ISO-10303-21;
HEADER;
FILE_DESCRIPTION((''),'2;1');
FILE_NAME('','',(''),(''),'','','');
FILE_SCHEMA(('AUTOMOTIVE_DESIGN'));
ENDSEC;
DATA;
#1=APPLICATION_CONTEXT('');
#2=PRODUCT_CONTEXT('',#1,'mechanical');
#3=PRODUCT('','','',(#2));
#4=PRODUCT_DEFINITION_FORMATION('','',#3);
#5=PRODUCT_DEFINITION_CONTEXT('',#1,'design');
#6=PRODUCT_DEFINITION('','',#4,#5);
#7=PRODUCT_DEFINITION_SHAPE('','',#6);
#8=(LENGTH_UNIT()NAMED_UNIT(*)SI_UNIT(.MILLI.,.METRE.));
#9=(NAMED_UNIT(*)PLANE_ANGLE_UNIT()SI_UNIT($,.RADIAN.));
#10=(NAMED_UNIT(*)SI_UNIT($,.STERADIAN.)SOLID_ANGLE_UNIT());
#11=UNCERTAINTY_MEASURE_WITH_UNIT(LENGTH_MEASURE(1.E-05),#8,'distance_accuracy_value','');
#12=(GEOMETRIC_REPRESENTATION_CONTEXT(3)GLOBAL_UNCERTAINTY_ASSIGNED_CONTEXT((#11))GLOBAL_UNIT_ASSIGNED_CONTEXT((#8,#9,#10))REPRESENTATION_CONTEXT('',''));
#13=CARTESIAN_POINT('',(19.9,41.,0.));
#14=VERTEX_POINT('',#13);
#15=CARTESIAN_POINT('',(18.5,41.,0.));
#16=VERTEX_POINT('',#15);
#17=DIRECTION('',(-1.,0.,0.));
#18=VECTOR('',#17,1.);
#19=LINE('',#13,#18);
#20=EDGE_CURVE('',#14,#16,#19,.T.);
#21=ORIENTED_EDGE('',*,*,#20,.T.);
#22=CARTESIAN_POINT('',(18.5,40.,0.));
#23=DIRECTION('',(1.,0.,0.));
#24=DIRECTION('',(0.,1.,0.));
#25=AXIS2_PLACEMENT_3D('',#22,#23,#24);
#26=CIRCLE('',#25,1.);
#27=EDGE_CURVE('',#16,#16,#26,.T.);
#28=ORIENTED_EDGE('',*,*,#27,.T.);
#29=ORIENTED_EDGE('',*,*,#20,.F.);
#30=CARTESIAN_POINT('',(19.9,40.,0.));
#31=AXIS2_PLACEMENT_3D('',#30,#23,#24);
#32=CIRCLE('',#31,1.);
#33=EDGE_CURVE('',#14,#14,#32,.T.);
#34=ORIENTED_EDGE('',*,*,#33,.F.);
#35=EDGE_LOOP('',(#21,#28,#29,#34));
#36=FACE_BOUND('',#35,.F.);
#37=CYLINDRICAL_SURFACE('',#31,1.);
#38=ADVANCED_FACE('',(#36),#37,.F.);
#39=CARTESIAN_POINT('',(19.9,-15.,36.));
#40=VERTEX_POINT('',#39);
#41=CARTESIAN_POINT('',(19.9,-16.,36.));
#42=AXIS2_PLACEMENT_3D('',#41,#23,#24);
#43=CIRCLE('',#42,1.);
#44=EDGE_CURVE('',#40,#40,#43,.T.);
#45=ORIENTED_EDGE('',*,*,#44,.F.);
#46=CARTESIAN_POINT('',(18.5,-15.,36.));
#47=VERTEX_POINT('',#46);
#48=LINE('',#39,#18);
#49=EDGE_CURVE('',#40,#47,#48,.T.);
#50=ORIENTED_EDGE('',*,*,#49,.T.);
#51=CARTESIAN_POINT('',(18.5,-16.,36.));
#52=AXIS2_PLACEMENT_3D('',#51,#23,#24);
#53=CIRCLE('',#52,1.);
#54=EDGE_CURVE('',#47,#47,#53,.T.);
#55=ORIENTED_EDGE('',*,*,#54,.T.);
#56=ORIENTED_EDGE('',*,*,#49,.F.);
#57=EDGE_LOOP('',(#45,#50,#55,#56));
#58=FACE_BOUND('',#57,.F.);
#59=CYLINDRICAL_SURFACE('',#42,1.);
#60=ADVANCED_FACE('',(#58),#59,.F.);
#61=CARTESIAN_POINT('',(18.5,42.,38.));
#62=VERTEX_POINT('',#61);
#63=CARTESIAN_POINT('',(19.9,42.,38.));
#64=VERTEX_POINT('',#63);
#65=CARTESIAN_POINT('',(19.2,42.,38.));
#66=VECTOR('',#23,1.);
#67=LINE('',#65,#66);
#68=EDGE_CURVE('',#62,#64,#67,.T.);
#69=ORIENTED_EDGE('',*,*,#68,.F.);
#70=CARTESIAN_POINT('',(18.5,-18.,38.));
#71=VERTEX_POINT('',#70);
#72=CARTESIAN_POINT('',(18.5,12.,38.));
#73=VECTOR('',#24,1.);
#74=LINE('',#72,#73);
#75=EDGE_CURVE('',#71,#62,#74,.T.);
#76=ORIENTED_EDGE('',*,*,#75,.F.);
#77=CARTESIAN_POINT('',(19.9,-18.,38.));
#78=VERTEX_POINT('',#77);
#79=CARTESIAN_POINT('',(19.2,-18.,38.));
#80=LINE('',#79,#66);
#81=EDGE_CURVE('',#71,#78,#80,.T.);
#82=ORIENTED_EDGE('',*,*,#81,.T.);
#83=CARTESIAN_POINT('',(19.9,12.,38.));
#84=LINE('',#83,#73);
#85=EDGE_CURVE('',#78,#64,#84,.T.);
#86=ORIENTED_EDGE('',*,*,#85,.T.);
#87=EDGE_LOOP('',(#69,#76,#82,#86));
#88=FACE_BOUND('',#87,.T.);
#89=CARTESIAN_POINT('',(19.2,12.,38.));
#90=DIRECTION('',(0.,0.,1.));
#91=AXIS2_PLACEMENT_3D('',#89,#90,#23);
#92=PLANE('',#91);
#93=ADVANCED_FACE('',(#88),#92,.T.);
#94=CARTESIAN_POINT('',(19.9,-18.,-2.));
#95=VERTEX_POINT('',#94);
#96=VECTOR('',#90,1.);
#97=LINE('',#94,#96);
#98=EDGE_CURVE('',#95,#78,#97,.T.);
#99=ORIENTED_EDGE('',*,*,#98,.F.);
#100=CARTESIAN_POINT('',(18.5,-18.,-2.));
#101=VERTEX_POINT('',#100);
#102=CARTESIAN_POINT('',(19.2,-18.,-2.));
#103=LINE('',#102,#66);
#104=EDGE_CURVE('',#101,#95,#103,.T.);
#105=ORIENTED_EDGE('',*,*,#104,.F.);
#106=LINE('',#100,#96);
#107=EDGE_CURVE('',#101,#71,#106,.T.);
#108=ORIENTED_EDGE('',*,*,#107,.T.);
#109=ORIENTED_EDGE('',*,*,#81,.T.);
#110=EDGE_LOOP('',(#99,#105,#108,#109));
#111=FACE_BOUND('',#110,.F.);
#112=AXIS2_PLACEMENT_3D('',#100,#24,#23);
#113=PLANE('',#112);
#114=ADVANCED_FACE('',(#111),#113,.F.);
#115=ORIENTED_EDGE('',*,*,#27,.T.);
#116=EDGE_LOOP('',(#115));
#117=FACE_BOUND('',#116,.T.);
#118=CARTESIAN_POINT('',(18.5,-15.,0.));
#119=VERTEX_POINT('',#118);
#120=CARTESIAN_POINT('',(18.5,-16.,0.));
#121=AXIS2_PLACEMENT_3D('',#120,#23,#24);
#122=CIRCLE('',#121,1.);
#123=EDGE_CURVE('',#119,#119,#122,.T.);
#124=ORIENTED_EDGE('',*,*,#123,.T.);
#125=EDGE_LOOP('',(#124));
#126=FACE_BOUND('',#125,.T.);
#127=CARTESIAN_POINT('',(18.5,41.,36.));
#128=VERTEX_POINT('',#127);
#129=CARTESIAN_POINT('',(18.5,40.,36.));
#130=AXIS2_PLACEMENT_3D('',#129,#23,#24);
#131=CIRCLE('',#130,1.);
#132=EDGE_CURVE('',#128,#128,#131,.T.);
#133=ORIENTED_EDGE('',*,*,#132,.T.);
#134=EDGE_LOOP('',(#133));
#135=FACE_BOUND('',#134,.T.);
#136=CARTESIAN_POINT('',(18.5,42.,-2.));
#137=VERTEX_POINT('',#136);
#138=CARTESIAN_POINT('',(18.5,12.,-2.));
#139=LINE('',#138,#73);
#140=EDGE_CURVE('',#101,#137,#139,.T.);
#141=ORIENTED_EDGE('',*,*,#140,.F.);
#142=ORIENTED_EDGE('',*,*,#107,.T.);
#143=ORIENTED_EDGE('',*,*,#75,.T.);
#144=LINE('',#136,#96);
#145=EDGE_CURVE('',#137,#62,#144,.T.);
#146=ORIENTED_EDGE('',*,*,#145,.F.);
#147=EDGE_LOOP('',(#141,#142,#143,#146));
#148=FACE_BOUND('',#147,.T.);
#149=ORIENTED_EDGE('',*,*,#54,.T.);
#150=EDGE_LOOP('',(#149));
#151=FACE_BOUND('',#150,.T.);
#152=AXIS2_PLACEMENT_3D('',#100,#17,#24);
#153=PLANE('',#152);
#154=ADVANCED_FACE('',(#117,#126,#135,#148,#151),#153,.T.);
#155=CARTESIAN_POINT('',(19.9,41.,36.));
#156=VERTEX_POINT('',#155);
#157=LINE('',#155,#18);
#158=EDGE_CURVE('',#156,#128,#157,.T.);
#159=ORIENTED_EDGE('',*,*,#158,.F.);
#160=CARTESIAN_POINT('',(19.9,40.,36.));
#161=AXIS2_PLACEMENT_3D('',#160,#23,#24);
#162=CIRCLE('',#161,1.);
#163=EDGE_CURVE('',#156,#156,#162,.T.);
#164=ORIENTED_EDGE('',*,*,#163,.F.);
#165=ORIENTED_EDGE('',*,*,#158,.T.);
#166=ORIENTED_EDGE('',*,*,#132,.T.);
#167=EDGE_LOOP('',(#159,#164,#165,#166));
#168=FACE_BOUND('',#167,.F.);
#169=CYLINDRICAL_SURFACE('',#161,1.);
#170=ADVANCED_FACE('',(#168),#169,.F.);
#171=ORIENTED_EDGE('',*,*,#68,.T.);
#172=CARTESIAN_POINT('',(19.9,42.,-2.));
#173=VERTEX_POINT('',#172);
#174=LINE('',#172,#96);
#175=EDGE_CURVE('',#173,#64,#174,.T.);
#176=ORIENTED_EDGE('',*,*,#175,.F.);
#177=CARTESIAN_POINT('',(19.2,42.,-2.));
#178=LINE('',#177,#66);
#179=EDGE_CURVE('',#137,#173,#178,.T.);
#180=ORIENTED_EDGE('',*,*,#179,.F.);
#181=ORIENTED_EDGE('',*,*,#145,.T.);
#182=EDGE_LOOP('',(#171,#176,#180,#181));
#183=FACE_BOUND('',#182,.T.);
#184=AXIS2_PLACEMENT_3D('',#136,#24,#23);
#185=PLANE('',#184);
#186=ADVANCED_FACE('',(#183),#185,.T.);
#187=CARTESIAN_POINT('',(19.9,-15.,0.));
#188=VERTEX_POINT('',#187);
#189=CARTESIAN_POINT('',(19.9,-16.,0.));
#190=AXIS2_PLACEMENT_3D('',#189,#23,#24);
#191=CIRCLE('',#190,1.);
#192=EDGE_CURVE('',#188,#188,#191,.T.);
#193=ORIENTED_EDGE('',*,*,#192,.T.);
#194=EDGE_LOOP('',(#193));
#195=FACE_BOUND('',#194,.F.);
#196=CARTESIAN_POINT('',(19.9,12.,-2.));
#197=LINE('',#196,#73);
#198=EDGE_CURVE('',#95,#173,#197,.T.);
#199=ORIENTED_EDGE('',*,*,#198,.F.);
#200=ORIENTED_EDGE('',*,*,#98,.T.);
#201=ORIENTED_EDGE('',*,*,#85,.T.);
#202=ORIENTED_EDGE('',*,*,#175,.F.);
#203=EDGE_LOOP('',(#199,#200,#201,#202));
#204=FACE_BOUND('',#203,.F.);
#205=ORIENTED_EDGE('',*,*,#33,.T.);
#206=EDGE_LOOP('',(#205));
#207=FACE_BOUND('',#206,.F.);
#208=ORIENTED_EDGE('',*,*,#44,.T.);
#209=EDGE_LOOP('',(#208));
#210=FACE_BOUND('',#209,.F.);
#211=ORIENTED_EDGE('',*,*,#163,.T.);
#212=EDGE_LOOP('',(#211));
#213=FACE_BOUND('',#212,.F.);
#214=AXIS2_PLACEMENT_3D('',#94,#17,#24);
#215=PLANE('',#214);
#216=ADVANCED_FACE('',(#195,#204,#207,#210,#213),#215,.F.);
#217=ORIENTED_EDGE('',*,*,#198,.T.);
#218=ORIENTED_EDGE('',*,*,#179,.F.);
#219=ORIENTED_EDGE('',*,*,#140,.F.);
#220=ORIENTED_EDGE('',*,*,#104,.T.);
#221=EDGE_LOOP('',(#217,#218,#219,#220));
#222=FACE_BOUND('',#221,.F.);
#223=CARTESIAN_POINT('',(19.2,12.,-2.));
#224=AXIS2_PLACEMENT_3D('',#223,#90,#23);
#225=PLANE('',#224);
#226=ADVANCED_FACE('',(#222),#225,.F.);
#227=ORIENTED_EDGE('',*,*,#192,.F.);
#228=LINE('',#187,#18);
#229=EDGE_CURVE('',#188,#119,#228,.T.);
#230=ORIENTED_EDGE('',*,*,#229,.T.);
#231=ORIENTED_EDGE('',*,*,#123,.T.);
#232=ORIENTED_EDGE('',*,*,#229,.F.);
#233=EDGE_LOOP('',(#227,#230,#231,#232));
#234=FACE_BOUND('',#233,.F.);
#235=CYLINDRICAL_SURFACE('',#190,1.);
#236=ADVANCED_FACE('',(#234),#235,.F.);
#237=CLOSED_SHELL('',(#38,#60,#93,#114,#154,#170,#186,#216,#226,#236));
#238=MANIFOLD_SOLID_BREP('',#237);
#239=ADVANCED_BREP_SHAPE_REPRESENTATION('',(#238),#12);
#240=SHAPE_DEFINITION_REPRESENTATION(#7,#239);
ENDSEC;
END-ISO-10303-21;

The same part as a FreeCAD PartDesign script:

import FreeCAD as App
import Part
import Sketcher
from FreeCAD import Vector


def add_polygon(sketch, points):
    """Adds a closed chain of lines whose ends are joined by coincident constraints."""
    first, n = sketch.GeometryCount, len(points)
    for a, b in zip(points, points[1:] + points[:1]):
        sketch.addGeometry(Part.LineSegment(App.Vector(*a, 0), App.Vector(*b, 0)), False)
    for i in range(n):
        sketch.addConstraint(Sketcher.Constraint("Coincident", first + i, 2, first + (i + 1) % n, 1))

doc = App.newDocument("Part")
params = doc.addObject("Spreadsheet::Sheet", "Params")
for row, (alias, value) in enumerate([
    ("sketch1_diameter", "2 mm"),
    ("pad1_length", "1.4 mm"),
    ("sketch2_height", "60 mm"),
    ("sketch2_width", "1.4 mm"),
    ("pad2_length", "40 mm"),
], start=1):
    params.set(f"A{row}", alias)
    params.set(f"B{row}", "=" + value)
    params.setAlias(f"B{row}", alias)

body = doc.addObject("PartDesign::Body", "Body")
body.AllowCompound = True

sketch1 = doc.addObject("Sketcher::SketchObject", "Sketch")
body.addObject(sketch1)
sketch1.AttachmentSupport = (doc.YZ_Plane, [""])
sketch1.MapMode = "FlatFace"
sketch1.AttachmentOffset = App.Placement(Vector(0, 0, 1.4), App.Rotation())
sketch1.addGeometry([
    Part.Circle(Vector(2, 38, 0), Vector(0, 0, 1), 1),
    Part.Circle(Vector(58, 38, 0), Vector(0, 0, 1), 1),
    Part.Circle(Vector(58, 2, 0), Vector(0, 0, 1), 1),
    Part.Circle(Vector(2, 2, 0), Vector(0, 0, 1), 1),
], False)
sketch1.addConstraint([
    Sketcher.Constraint("Equal", 0, 1),
    Sketcher.Constraint("Equal", 1, 2),
    Sketcher.Constraint("Equal", 2, 3),
    Sketcher.Constraint("Horizontal", 0, 3, 1, 3),
    Sketcher.Constraint("Horizontal", 2, 3, 3, 3),
    Sketcher.Constraint("Vertical", 1, 3, 2, 3),
    Sketcher.Constraint("Vertical", 0, 3, 3, 3),
    Sketcher.Constraint("Diameter", 0, 2.0),
    Sketcher.Constraint("DistanceX", -1, 1, 0, 3, 2.0),
    Sketcher.Constraint("DistanceY", -1, 1, 0, 3, 38.0),
    Sketcher.Constraint("DistanceX", -1, 1, 1, 3, 58.0),
    Sketcher.Constraint("DistanceY", -1, 1, 2, 3, 2.0),
])
sketch1.setExpression("Constraints[7]", "Params.sketch1_diameter")
pad1 = doc.addObject("PartDesign::Pad", "Pad")
body.addObject(pad1)
pad1.Profile = sketch1
pad1.setExpression("Length", "Params.pad1_length")
pad1.Reversed = True
body2 = doc.addObject("PartDesign::Body", "Body001")

sketch2 = doc.addObject("Sketcher::SketchObject", "Sketch001")
body2.addObject(sketch2)
sketch2.AttachmentSupport = (doc.getObject("XY_Plane001"), [""])
sketch2.MapMode = "FlatFace"
add_polygon(sketch2, [(0, 60), (0, 0), (1.4, 0), (1.4, 60)])
sketch2.addConstraint([
    Sketcher.Constraint("Vertical", 0),
    Sketcher.Constraint("Horizontal", 1),
    Sketcher.Constraint("Vertical", 2),
    Sketcher.Constraint("Horizontal", 3),
    Sketcher.Constraint("Coincident", 0, 2, -1, 1),
    Sketcher.Constraint("DistanceY", 0, 2, 0, 1, 60.0),
    Sketcher.Constraint("DistanceX", 1, 1, 1, 2, 1.4),
])
sketch2.setExpression("Constraints[9]", "Params.sketch2_height")
sketch2.setExpression("Constraints[10]", "Params.sketch2_width")
pad2 = doc.addObject("PartDesign::Pad", "Pad001")
body2.addObject(pad2)
pad2.Profile = sketch2
pad2.setExpression("Length", "Params.pad2_length")
doc.recompute()

boolean = doc.addObject("PartDesign::Boolean", "Boolean")
body2.addObject(boolean)
boolean.Type = "Cut"
boolean.addObjects([body])
body3 = doc.addObject("PartDesign::Body", "Body002")
doc.recompute()

body2.Placement = App.Placement(Vector(18.5, -18, -2), App.Rotation(Vector(0, 0, 1), 0))
boolean2 = doc.addObject("PartDesign::Boolean", "Boolean001")
body3.addObject(boolean2)
boolean2.Type = "Fuse"
boolean2.addObjects([body2])

doc.recompute()
